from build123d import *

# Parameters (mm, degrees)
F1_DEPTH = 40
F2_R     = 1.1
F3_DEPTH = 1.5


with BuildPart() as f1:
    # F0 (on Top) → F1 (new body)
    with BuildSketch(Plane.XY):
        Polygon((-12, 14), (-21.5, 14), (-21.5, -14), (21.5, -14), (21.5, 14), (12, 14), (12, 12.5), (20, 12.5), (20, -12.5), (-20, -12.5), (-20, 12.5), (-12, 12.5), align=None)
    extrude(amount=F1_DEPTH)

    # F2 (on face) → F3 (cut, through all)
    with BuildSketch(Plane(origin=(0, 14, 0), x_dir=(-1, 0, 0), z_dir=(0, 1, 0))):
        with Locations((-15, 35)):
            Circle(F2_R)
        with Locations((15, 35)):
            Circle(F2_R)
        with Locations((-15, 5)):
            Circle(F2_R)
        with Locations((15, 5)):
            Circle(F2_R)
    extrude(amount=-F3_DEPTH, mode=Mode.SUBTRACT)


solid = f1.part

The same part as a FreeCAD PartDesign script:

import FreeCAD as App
import Part
import Sketcher

V = App.Vector
Q = App.Units.Quantity

doc = App.newDocument("Part")
params = doc.addObject("Spreadsheet::Sheet", "Params")
for row, (alias, value) in enumerate([
    ("sketch1_width", "43 mm"),
    ("sketch1_width2", "8 mm"),
    ("sketch1_width3", "40 mm"),
    ("sketch1_height", "28 mm"),
    ("sketch1_height2", "25 mm"),
    ("pad1_length", "40 mm"),
    ("sketch2_diameter", "2.2 mm"),
    ("pocket1_length", "1.5 mm"),
], start=1):
    params.set(f"A{row}", alias)
    params.set(f"B{row}", "=" + value)
    params.setAlias(f"B{row}", alias)

body = doc.addObject("PartDesign::Body", "Body")

# Sketch on XY plane
sketch1 = doc.addObject("Sketcher::SketchObject", "Sketch")
body.addObject(sketch1)
sketch1.AttachmentSupport = (doc.XY_Plane, [""])
sketch1.MapMode = "FlatFace"
sketch1.addGeometry([
    Part.LineSegment(V(-12, 14, 0), V(-21.5, 14, 0)),  # 0
    Part.LineSegment(V(-21.5, 14, 0), V(-21.5, -14, 0)),  # 1
    Part.LineSegment(V(-21.5, -14, 0), V(21.5, -14, 0)),  # 2
    Part.LineSegment(V(21.5, -14, 0), V(21.5, 14, 0)),  # 3
    Part.LineSegment(V(21.5, 14, 0), V(12, 14, 0)),  # 4
    Part.LineSegment(V(12, 14, 0), V(12, 12.5, 0)),  # 5
    Part.LineSegment(V(12, 12.5, 0), V(20, 12.5, 0)),  # 6
    Part.LineSegment(V(20, 12.5, 0), V(20, -12.5, 0)),  # 7
    Part.LineSegment(V(20, -12.5, 0), V(-20, -12.5, 0)),  # 8
    Part.LineSegment(V(-20, -12.5, 0), V(-20, 12.5, 0)),  # 9
    Part.LineSegment(V(-20, 12.5, 0), V(-12, 12.5, 0)),  # 10
    Part.LineSegment(V(-12, 12.5, 0), V(-12, 14, 0)),  # 11
], False)
sketch1.addConstraint([
    Sketcher.Constraint("Coincident", 0, 2, 1, 1),
    Sketcher.Constraint("Coincident", 1, 2, 2, 1),
    Sketcher.Constraint("Coincident", 2, 2, 3, 1),
    Sketcher.Constraint("Coincident", 3, 2, 4, 1),
    Sketcher.Constraint("Coincident", 4, 2, 5, 1),
    Sketcher.Constraint("Coincident", 5, 2, 6, 1),
    Sketcher.Constraint("Coincident", 6, 2, 7, 1),
    Sketcher.Constraint("Coincident", 7, 2, 8, 1),
    Sketcher.Constraint("Coincident", 8, 2, 9, 1),
    Sketcher.Constraint("Coincident", 9, 2, 10, 1),
    Sketcher.Constraint("Coincident", 10, 2, 11, 1),
    Sketcher.Constraint("Coincident", 11, 2, 0, 1),
    Sketcher.Constraint("Horizontal", 0),
    Sketcher.Constraint("Vertical", 1),
    Sketcher.Constraint("Horizontal", 2),
    Sketcher.Constraint("Vertical", 3),
    Sketcher.Constraint("Horizontal", 4),
    Sketcher.Constraint("Vertical", 5),
    Sketcher.Constraint("Horizontal", 6),
    Sketcher.Constraint("Vertical", 7),
    Sketcher.Constraint("Horizontal", 8),
    Sketcher.Constraint("Vertical", 9),
    Sketcher.Constraint("Horizontal", 10),
    Sketcher.Constraint("Vertical", 11),
    Sketcher.Constraint("Symmetric", 0, 2, 2, 2, -1, 1),
    Sketcher.Constraint("Symmetric", 6, 2, 8, 2, -1, 1),
    Sketcher.Constraint("Symmetric", 5, 2, 10, 2, -2),
    Sketcher.Constraint("Horizontal", 0, 2, 3, 2),
    Sketcher.Constraint("DistanceX", 2, 1, 2, 2, Q("43 mm")),
    Sketcher.Constraint("DistanceX", 6, 1, 6, 2, Q("8 mm")),
    Sketcher.Constraint("DistanceX", 8, 2, 8, 1, Q("40 mm")),
    Sketcher.Constraint("DistanceY", 1, 2, 1, 1, Q("28 mm")),
    Sketcher.Constraint("DistanceY", 7, 2, 7, 1, Q("25 mm")),
])
sketch1.setExpression("Constraints[28]", "Params.sketch1_width")
sketch1.setExpression("Constraints[29]", "Params.sketch1_width2")
sketch1.setExpression("Constraints[30]", "Params.sketch1_width3")
sketch1.setExpression("Constraints[31]", "Params.sketch1_height")
sketch1.setExpression("Constraints[32]", "Params.sketch1_height2")
pad1 = doc.addObject("PartDesign::Pad", "Pad")
body.addObject(pad1)
pad1.Profile = sketch1
pad1.setExpression("Length", "Params.pad1_length")

# Sketch on XZ plane
sketch2 = doc.addObject("Sketcher::SketchObject", "Sketch001")
body.addObject(sketch2)
sketch2.AttachmentSupport = (doc.XZ_Plane, [""])
sketch2.MapMode = "FlatFace"
sketch2.AttachmentOffset = App.Placement(V(0, 0, -14), App.Rotation())
sketch2.addGeometry([
    Part.Circle(V(15, 35, 0), V(0, 0, 1), 1.1),
    Part.Circle(V(-15, 35, 0), V(0, 0, 1), 1.1),
    Part.Circle(V(15, 5, 0), V(0, 0, 1), 1.1),
    Part.Circle(V(-15, 5, 0), V(0, 0, 1), 1.1),
], False)
sketch2.addConstraint([
    Sketcher.Constraint("Equal", 0, 1),
    Sketcher.Constraint("Equal", 1, 2),
    Sketcher.Constraint("Equal", 2, 3),
    Sketcher.Constraint("Symmetric", 0, 3, 1, 3, -2),
    Sketcher.Constraint("Symmetric", 2, 3, 3, 3, -2),
    Sketcher.Constraint("Vertical", 0, 3, 2, 3),
    Sketcher.Constraint("Diameter", 0, Q("2.2 mm")),
    Sketcher.Constraint("DistanceX", -1, 1, 0, 3, Q("15 mm")),
    Sketcher.Constraint("DistanceY", -1, 1, 0, 3, Q("35 mm")),
    Sketcher.Constraint("DistanceY", -1, 1, 2, 3, Q("5 mm")),
])
sketch2.setExpression("Constraints[6]", "Params.sketch2_diameter")
pocket1 = doc.addObject("PartDesign::Pocket", "Pocket")
body.addObject(pocket1)
pocket1.Profile = sketch2
pocket1.setExpression("Length", "Params.pocket1_length")
pocket1.Reversed = True

doc.recompute()
